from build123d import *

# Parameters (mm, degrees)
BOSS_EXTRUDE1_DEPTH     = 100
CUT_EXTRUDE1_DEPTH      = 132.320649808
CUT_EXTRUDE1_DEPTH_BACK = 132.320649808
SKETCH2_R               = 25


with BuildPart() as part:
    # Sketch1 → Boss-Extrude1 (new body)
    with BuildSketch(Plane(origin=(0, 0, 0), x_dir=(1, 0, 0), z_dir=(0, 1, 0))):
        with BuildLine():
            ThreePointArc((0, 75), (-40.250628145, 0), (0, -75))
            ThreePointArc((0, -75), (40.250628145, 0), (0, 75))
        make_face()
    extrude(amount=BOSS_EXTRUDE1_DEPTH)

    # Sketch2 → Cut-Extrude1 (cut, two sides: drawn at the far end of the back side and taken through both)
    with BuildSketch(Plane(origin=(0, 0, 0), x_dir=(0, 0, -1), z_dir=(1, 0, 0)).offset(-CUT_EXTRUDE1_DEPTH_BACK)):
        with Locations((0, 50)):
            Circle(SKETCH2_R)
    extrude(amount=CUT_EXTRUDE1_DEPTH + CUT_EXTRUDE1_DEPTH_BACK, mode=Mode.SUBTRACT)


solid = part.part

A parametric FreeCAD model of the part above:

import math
import FreeCAD as App
import Part
import Sketcher
Q = App.Units.Quantity

doc = App.newDocument("Part")
params = doc.addObject("Spreadsheet::Sheet", "Params")
for row, (alias, value) in enumerate([
    ("sketch1_radius", "90 mm"),
    ("pad1_length", "100 mm"),
    ("sketch2_diameter", "50 mm"),
], start=1):
    params.set(f"A{row}", alias)
    params.set(f"B{row}", "=" + value)
    params.setAlias(f"B{row}", alias)

body = doc.addObject("PartDesign::Body", "Body")

# Sketch on XZ plane
sketch1 = body.newObject("Sketcher::SketchObject", "Sketch")
sketch1.AttachmentSupport = (doc.getObject("XZ_Plane"), [""])
sketch1.MapMode = "FlatFace"
sketch1.addGeometry(Part.ArcOfCircle(Part.Circle(App.Vector(50, 0, 0), App.Vector(0, 0, 1), 90), math.radians(124), math.radians(236)), False)
sketch1.addGeometry(Part.ArcOfCircle(Part.Circle(App.Vector(-50, 0, 0), App.Vector(0, 0, 1), 90), math.radians(-56), math.radians(56)), False)
sketch1.addConstraint(Sketcher.Constraint("Coincident", 0, 1, 1, 2))
sketch1.addConstraint(Sketcher.Constraint("Coincident", 1, 1, 0, 2))
sketch1.addConstraint(Sketcher.Constraint("Equal", 0, 1))
sketch1.addConstraint(Sketcher.Constraint("Symmetric", 0, 3, 1, 3, -1, 1))
sketch1.addConstraint(Sketcher.Constraint("PointOnObject", 0, 3, -1))
sketch1.addConstraint(Sketcher.Constraint("Radius", 0, Q("90 mm")))
sketch1.addConstraint(Sketcher.Constraint("DistanceY", -1, 1, 0, 1, Q("75 mm")))
sketch1.setExpression("Constraints[5]", "Params.sketch1_radius")
pad1 = body.newObject("PartDesign::Pad", "Pad")
pad1.Profile = sketch1
pad1.setExpression("Length", "Params.pad1_length")
pad1.Reversed = True

# Sketch on YZ plane
sketch2 = body.newObject("Sketcher::SketchObject", "Sketch001")
sketch2.AttachmentSupport = (doc.getObject("YZ_Plane"), [""])
sketch2.MapMode = "FlatFace"
sketch2.addGeometry(Part.Circle(App.Vector(50, 0, 0), App.Vector(0, 0, 1), 25), False)
sketch2.addConstraint(Sketcher.Constraint("PointOnObject", 0, 3, -1))
sketch2.addConstraint(Sketcher.Constraint("Diameter", 0, Q("50 mm")))
sketch2.addConstraint(Sketcher.Constraint("DistanceX", -1, 1, 0, 3, Q("50 mm")))
sketch2.setExpression("Constraints[1]", "Params.sketch2_diameter")
pocket1 = body.newObject("PartDesign::Pocket", "Pocket")
pocket1.Profile = sketch2
pocket1.Type = "ThroughAll"
pocket1.Midplane = True

doc.recompute()
